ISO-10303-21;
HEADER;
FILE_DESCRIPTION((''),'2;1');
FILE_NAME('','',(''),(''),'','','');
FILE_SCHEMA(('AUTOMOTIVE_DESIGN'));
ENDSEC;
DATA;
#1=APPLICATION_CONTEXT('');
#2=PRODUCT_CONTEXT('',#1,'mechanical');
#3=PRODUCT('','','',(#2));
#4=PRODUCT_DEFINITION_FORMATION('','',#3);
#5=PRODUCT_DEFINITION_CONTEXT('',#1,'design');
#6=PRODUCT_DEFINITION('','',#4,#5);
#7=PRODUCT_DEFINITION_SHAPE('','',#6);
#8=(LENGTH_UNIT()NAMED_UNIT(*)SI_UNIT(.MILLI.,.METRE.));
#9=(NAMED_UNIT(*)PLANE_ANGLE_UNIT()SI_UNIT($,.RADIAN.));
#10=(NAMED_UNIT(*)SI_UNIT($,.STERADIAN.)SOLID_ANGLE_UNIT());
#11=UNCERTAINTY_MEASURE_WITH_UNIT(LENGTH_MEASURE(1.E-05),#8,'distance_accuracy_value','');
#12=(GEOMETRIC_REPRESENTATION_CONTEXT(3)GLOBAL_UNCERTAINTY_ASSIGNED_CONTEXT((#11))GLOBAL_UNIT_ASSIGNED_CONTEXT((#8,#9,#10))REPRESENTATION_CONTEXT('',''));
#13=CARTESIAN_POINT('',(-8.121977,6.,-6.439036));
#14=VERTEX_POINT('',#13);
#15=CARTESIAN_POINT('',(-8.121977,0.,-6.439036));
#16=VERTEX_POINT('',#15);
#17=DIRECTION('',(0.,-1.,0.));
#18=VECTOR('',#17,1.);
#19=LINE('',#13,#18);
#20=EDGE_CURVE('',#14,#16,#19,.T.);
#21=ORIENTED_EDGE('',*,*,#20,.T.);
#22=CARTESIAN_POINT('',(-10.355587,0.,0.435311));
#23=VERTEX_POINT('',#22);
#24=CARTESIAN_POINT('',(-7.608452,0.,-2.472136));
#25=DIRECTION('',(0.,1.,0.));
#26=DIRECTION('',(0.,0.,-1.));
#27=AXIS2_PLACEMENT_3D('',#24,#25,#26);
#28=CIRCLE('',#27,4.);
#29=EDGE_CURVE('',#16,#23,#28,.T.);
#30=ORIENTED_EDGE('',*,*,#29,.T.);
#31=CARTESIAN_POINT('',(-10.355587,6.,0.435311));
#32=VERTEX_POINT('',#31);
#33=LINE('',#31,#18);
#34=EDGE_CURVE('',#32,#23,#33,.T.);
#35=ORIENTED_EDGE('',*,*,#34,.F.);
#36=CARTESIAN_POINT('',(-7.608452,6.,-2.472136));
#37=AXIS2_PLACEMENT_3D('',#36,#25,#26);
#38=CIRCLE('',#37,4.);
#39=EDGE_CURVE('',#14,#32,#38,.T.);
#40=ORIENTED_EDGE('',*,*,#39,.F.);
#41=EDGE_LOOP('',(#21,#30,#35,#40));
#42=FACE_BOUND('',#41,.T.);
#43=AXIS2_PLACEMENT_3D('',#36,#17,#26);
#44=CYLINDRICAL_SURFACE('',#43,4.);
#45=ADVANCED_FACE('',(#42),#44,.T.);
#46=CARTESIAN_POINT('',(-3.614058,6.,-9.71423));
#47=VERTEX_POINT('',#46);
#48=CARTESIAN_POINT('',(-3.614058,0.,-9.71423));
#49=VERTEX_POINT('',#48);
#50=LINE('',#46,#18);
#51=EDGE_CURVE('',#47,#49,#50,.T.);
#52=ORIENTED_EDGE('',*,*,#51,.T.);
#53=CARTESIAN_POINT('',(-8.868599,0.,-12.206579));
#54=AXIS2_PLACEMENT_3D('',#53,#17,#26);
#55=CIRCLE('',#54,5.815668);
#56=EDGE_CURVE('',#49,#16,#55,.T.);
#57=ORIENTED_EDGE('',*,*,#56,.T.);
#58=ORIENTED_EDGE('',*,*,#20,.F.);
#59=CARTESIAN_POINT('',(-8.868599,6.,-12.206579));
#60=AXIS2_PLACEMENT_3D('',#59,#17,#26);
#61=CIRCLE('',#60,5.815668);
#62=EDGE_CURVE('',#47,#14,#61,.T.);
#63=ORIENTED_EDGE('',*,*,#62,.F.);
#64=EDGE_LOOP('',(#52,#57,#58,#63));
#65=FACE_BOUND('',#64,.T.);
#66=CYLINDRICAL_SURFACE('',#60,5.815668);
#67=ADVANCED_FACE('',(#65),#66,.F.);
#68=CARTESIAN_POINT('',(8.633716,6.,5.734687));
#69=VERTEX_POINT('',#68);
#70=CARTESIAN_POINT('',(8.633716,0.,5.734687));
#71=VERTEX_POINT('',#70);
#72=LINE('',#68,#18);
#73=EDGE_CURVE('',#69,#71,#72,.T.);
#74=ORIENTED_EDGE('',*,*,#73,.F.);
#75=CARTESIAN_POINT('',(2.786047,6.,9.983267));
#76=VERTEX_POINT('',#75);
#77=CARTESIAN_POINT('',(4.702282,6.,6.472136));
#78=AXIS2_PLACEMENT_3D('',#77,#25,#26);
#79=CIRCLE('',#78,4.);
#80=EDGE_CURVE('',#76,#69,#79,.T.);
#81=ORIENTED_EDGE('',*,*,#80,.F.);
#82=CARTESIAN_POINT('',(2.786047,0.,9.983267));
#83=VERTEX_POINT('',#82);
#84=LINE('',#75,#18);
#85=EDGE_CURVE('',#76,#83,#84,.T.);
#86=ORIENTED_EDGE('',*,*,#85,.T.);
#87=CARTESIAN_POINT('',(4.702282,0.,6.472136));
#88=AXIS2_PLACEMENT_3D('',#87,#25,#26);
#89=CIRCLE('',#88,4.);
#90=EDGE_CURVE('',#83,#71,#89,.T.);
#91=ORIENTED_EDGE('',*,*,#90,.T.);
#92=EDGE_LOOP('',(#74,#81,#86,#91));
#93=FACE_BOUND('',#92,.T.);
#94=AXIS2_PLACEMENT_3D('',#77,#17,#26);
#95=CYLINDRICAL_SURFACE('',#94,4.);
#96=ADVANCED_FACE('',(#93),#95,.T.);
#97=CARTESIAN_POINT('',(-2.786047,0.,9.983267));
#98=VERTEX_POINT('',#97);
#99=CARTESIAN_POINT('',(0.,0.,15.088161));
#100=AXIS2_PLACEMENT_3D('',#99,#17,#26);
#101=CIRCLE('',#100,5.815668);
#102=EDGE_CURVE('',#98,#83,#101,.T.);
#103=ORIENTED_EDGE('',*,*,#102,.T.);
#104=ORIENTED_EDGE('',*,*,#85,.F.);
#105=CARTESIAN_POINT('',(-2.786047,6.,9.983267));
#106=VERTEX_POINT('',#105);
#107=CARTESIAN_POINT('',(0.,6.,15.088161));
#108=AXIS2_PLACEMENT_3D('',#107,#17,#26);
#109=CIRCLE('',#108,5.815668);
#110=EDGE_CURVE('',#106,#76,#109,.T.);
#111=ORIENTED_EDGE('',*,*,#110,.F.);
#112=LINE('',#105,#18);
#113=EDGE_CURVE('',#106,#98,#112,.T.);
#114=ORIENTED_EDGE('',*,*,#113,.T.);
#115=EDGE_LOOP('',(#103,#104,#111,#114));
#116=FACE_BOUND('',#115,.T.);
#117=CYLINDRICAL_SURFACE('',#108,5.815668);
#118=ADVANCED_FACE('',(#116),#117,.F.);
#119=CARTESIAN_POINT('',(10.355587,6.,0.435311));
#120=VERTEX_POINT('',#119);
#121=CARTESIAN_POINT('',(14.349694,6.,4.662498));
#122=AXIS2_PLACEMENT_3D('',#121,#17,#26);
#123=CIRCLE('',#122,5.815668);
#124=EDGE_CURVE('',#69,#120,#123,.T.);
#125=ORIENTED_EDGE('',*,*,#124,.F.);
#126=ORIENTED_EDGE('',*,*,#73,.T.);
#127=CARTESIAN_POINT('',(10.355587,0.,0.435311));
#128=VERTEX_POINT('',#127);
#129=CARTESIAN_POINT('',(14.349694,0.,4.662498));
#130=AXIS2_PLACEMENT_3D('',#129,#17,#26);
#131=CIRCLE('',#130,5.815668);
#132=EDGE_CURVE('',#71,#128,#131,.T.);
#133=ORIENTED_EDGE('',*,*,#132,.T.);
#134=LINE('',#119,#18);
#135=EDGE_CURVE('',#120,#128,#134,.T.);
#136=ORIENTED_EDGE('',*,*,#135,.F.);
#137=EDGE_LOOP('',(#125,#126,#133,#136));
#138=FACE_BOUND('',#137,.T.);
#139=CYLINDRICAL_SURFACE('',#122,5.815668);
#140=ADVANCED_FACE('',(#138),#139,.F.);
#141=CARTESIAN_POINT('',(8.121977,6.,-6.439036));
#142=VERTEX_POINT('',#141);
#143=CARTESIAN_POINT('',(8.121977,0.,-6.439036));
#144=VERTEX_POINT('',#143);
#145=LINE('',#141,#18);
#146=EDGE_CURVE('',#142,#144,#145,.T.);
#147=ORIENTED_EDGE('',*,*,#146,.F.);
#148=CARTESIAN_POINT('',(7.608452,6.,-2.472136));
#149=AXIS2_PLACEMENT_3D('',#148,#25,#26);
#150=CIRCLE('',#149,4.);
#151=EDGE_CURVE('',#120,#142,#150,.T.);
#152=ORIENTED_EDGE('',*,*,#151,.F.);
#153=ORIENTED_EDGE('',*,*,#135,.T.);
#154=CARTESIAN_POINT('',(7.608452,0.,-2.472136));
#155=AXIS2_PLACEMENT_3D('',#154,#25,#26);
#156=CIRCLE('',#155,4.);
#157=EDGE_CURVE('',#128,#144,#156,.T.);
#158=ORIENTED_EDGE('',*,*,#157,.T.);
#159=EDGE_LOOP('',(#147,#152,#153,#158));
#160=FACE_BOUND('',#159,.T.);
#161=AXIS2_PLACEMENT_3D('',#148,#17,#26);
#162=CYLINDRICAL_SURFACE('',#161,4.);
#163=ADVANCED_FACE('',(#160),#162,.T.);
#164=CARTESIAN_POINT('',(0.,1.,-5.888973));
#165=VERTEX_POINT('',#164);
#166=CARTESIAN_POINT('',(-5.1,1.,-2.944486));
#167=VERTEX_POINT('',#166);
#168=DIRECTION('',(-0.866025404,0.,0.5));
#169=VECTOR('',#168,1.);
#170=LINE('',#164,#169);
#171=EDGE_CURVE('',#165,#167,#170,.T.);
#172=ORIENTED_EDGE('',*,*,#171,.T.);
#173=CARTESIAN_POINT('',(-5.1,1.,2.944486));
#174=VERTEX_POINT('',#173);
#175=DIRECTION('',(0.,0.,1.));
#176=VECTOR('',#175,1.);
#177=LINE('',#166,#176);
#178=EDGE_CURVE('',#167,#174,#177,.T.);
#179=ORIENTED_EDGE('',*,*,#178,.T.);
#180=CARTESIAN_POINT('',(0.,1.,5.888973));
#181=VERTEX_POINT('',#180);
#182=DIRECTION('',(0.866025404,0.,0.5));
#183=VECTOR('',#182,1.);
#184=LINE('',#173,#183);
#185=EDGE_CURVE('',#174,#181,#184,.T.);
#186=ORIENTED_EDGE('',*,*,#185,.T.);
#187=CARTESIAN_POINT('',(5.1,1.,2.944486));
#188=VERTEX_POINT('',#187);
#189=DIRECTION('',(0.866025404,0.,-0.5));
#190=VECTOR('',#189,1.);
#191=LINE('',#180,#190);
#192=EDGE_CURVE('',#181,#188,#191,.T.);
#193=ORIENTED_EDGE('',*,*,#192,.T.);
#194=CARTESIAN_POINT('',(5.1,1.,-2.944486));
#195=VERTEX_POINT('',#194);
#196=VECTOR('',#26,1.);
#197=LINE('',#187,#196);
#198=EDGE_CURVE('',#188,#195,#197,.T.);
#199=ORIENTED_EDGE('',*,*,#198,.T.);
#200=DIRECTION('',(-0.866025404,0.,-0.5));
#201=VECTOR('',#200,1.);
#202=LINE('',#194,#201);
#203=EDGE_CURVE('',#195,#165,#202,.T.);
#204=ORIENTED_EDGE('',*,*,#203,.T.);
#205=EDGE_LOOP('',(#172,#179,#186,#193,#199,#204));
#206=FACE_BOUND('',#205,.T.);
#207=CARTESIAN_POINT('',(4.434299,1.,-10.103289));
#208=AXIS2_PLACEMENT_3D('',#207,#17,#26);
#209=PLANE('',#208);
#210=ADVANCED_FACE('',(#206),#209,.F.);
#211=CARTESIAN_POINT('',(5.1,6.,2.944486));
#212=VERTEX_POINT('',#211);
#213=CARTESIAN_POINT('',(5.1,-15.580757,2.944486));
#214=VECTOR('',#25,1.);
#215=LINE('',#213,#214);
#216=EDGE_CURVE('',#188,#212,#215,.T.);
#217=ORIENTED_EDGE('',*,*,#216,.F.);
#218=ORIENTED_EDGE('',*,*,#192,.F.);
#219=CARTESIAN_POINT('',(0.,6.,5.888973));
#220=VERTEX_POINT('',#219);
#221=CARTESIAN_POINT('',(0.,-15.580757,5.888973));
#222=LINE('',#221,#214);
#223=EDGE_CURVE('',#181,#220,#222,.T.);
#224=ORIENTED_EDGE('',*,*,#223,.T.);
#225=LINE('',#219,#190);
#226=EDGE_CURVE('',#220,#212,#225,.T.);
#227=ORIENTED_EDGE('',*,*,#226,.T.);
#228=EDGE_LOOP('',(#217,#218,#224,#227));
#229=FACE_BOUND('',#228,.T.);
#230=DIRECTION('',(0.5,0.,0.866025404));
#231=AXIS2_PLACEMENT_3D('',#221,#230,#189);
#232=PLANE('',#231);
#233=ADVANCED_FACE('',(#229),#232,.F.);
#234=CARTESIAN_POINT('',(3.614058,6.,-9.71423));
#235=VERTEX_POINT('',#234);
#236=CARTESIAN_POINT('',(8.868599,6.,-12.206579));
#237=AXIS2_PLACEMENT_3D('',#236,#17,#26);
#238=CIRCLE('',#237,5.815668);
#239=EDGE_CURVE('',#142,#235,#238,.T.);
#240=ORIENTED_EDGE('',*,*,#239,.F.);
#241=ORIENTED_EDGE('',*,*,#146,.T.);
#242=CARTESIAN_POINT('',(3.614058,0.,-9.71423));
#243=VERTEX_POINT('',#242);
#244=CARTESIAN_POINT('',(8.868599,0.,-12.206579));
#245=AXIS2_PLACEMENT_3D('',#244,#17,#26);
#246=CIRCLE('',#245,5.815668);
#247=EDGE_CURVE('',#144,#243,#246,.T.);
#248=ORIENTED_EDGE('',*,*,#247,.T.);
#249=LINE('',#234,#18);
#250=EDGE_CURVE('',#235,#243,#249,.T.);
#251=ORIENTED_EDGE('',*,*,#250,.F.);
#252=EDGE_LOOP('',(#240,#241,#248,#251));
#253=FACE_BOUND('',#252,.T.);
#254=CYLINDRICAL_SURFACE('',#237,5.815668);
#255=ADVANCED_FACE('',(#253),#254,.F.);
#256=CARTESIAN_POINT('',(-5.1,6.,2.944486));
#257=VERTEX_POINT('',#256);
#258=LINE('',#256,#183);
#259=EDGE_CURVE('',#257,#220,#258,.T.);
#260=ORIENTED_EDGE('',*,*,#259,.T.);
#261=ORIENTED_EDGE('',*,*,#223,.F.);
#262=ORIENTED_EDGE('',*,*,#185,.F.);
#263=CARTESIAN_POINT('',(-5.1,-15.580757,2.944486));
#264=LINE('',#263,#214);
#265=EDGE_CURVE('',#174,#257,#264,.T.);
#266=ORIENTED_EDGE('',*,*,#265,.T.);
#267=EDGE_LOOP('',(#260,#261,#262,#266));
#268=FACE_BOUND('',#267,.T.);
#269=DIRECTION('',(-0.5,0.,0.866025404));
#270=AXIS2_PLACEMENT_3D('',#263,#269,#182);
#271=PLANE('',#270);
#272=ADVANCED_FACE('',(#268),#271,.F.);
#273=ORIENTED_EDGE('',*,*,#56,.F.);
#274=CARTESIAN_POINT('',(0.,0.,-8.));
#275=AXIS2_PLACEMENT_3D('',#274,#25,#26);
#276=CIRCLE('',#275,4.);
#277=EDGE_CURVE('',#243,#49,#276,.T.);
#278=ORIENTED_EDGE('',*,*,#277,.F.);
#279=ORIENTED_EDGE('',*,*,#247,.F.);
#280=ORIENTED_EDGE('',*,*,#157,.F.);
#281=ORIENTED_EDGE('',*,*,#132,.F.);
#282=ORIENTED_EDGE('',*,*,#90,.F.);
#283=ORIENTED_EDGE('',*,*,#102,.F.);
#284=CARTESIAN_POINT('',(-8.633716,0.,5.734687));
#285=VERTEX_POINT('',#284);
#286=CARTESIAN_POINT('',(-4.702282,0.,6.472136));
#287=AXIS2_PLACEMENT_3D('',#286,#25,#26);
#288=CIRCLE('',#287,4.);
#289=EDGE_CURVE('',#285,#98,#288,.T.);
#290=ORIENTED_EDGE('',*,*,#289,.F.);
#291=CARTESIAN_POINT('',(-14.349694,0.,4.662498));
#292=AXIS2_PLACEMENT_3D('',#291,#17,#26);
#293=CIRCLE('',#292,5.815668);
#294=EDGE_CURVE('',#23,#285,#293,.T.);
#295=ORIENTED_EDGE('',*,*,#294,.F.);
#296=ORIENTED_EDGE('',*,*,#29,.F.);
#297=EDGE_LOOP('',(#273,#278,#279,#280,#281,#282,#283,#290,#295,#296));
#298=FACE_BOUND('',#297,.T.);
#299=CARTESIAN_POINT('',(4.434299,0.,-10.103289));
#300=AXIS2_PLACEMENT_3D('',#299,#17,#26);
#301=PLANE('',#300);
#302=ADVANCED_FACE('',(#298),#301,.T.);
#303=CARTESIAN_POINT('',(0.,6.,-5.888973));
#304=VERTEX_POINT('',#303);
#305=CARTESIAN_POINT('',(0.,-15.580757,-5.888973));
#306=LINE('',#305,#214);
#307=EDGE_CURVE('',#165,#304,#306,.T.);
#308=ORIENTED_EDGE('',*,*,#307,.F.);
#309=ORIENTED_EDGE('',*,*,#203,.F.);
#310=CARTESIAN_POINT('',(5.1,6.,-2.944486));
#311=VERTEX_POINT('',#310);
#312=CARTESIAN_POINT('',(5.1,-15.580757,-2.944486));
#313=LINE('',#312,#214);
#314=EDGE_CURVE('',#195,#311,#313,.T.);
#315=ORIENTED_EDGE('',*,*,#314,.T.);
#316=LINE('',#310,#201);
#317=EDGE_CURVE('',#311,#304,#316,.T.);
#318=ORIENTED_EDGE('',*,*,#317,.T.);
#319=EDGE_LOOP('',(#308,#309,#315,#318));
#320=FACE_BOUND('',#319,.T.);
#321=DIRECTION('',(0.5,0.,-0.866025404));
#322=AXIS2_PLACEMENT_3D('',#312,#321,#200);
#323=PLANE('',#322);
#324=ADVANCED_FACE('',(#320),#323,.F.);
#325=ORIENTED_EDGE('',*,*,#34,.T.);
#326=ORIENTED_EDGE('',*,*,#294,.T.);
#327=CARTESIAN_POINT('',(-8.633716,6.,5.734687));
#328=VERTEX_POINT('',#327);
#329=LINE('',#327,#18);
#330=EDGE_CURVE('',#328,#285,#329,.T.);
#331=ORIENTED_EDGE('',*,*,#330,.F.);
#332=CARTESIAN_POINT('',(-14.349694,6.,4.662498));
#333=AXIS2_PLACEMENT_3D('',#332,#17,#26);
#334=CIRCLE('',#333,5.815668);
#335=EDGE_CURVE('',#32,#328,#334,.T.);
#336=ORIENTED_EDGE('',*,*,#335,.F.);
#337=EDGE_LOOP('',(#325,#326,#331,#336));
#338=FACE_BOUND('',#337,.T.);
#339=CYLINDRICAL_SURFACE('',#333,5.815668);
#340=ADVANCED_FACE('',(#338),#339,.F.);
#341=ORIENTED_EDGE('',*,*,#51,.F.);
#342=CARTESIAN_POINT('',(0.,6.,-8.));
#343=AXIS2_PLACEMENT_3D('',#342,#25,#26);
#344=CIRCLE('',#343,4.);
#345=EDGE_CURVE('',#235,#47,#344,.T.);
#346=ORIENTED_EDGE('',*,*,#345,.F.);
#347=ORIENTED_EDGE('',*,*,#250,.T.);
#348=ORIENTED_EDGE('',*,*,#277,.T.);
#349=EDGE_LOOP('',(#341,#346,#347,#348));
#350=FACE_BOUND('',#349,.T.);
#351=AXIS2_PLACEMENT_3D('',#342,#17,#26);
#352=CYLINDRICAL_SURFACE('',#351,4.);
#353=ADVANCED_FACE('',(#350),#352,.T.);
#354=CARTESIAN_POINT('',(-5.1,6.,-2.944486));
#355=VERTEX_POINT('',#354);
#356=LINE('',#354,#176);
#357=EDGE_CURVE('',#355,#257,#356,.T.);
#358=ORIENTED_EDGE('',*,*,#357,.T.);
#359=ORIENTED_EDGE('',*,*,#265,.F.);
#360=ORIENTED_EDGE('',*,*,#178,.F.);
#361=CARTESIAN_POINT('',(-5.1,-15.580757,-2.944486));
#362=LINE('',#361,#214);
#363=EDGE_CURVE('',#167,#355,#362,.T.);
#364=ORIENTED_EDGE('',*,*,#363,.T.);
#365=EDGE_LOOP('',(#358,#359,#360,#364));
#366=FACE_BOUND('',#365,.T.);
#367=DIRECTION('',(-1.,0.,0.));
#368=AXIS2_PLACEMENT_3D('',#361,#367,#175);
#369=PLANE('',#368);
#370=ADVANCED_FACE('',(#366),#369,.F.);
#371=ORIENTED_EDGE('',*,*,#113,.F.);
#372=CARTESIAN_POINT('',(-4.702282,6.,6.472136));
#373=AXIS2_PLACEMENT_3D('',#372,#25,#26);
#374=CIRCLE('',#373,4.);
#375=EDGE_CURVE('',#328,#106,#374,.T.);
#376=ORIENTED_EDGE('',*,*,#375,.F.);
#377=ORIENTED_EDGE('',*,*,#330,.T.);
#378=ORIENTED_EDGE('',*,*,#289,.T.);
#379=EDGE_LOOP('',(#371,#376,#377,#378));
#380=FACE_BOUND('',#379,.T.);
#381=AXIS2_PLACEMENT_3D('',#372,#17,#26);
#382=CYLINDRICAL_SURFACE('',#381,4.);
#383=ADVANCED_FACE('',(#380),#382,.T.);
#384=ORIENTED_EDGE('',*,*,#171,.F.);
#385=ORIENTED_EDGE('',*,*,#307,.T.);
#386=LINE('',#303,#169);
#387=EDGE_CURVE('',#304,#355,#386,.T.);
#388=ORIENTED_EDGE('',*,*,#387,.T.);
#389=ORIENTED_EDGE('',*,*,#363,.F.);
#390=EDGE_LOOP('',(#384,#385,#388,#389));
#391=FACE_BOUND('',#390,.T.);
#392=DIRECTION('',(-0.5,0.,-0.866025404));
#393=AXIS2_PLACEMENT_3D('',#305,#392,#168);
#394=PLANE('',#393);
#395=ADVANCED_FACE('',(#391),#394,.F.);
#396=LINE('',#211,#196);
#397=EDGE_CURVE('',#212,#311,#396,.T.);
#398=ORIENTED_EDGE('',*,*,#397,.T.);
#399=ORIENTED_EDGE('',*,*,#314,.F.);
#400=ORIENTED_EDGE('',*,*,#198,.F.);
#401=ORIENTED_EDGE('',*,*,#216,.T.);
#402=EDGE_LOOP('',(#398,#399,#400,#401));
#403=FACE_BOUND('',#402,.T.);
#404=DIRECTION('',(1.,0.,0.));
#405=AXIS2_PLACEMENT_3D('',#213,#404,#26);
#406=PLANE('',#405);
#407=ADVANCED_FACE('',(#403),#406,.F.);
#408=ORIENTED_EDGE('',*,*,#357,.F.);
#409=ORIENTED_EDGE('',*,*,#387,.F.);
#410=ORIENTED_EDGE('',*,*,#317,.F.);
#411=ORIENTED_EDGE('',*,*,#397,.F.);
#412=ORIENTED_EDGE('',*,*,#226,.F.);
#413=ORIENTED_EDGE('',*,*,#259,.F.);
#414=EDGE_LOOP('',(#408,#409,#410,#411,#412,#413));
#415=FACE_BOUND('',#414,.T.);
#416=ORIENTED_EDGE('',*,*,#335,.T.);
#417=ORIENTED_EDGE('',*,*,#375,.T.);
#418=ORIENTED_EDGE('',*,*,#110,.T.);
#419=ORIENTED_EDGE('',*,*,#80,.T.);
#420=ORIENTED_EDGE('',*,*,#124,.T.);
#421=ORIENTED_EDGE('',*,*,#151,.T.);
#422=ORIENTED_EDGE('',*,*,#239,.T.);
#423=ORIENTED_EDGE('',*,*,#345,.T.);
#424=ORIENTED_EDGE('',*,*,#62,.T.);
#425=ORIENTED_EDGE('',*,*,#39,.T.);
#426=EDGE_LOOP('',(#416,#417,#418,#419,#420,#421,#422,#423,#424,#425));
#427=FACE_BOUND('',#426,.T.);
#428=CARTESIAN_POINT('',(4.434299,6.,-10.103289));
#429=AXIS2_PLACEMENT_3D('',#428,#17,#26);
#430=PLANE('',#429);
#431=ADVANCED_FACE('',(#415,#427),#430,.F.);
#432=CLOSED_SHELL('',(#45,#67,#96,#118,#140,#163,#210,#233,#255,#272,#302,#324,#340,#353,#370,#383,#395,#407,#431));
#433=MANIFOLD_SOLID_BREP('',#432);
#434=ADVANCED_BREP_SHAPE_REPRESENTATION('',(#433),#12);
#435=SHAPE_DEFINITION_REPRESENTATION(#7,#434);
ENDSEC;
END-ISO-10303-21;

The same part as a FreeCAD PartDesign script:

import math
import FreeCAD as App
import Part
import Sketcher
from FreeCAD import Vector
Q = App.Units.Quantity


def add_polygon(sketch, points):
    """Adds a closed chain of lines whose ends are joined by coincident constraints."""
    first, n = sketch.GeometryCount, len(points)
    for a, b in zip(points, points[1:] + points[:1]):
        sketch.addGeometry(Part.LineSegment(App.Vector(*a, 0), App.Vector(*b, 0)), False)
    for i in range(n):
        sketch.addConstraint(Sketcher.Constraint("Coincident", first + i, 2, first + (i + 1) % n, 1))

doc = App.newDocument("Part")
body = doc.addObject("PartDesign::Body", "Body")

# Sketch on XZ plane
sketch1 = body.newObject("Sketcher::SketchObject", "Sketch")
sketch1.AttachmentSupport = (doc.getObject("XZ_Plane"), [""])
sketch1.MapMode = "FlatFace"
sketch1.addGeometry([
    Part.ArcOfCircle(Part.Circle(Vector(0, -8, 0), Vector(0, 0, 1), 4), math.radians(-155), math.radians(-25)),  # 0
    Part.ArcOfCircle(Part.Circle(Vector(-8.9, -12.2, 0), Vector(0, 0, 1), 5.8), math.radians(25), math.radians(83)),  # 1
    Part.ArcOfCircle(Part.Circle(Vector(-7.6, -2.5, 0), Vector(0, 0, 1), 4), math.radians(133), math.radians(263)),  # 2
    Part.ArcOfCircle(Part.Circle(Vector(-14.3, 4.7, 0), Vector(0, 0, 1), 5.8), math.radians(-47), math.radians(11)),  # 3
    Part.ArcOfCircle(Part.Circle(Vector(-4.7, 6.5, 0), Vector(0, 0, 1), 4), math.radians(61), math.radians(191)),  # 4
    Part.ArcOfCircle(Part.Circle(Vector(0, 15.1, 0), Vector(0, 0, 1), 5.8), math.radians(-119), math.radians(-61)),  # 5
    Part.ArcOfCircle(Part.Circle(Vector(4.7, 6.5, 0), Vector(0, 0, 1), 4), math.radians(-11), math.radians(119)),  # 6
    Part.ArcOfCircle(Part.Circle(Vector(14.3, 4.7, 0), Vector(0, 0, 1), 5.8), math.radians(169), math.radians(227)),  # 7
    Part.ArcOfCircle(Part.Circle(Vector(7.6, -2.5, 0), Vector(0, 0, 1), 4), math.radians(-83), math.radians(47)),  # 8
    Part.ArcOfCircle(Part.Circle(Vector(8.9, -12.2, 0), Vector(0, 0, 1), 5.8), math.radians(97), math.radians(155)),  # 9
], False)
sketch1.addConstraint([
    Sketcher.Constraint("Tangent", 0, 1, 1, 1),
    Sketcher.Constraint("Tangent", 1, 2, 2, 2),
    Sketcher.Constraint("Tangent", 2, 1, 3, 1),
    Sketcher.Constraint("Tangent", 3, 2, 4, 2),
    Sketcher.Constraint("Tangent", 4, 1, 5, 1),
    Sketcher.Constraint("Tangent", 5, 2, 6, 2),
    Sketcher.Constraint("Tangent", 6, 1, 7, 1),
    Sketcher.Constraint("Tangent", 7, 2, 8, 2),
    Sketcher.Constraint("Tangent", 8, 1, 9, 1),
    Sketcher.Constraint("Tangent", 9, 2, 0, 2),
    Sketcher.Constraint("Equal", 0, 2),
    Sketcher.Constraint("Equal", 1, 3),
    Sketcher.Constraint("Equal", 2, 4),
    Sketcher.Constraint("Equal", 3, 5),
    Sketcher.Constraint("Equal", 4, 6),
    Sketcher.Constraint("Equal", 5, 7),
    Sketcher.Constraint("Equal", 6, 8),
    Sketcher.Constraint("Equal", 7, 9),
    Sketcher.Constraint("Symmetric", 4, 3, 6, 3, -2),
    Sketcher.Constraint("Symmetric", 2, 3, 8, 3, -2),
    Sketcher.Constraint("PointOnObject", 0, 3, -2),
    Sketcher.Constraint("Radius", 0, 4.0),
    Sketcher.Constraint("DistanceY", 0, 3, -1, 1, 8.0),
    Sketcher.Constraint("Radius", 1, 5.815668),
    Sketcher.Constraint("DistanceX", 1, 3, -1, 1, 8.868599),
    Sketcher.Constraint("DistanceY", -1, 1, 3, 3, 4.662498),
    Sketcher.Constraint("DistanceY", 1, 2, 2, 3, 3.9669),
    Sketcher.Constraint("DistanceY", -1, 1, 5, 3, 15.088161),
])
pad1 = body.newObject("PartDesign::Pad", "Pad")
pad1.Profile = sketch1
pad1.Length = 6
pad1.Reversed = True

# Sketch on XZ plane
sketch2 = body.newObject("Sketcher::SketchObject", "Sketch001")
sketch2.AttachmentSupport = (doc.getObject("XZ_Plane"), [""])
sketch2.MapMode = "FlatFace"
sketch2.AttachmentOffset = App.Placement(Vector(0, 0, -6), App.Rotation())
add_polygon(sketch2, [(-5, -3), (-5, 3), (0, 6), (5, 3), (5, -3), (0, -6)])  # lines 0-5
sketch2.addConstraint([
    Sketcher.Constraint("Vertical", 0),
    Sketcher.Constraint("Vertical", 3),
    Sketcher.Constraint("Symmetric", 0, 2, 3, 2, -1, 1),
    Sketcher.Constraint("Symmetric", 1, 2, 4, 2, -1, 1),
    Sketcher.Constraint("PointOnObject", 1, 2, -2),
    Sketcher.Constraint("Parallel", 2, 5),
    Sketcher.Constraint("Horizontal", 0, 2, 2, 2),
    Sketcher.Constraint("Angle", 1, Q("30 deg")),
    Sketcher.Constraint("DistanceX", 0, 2, -1, 1, 5.1),
    Sketcher.Constraint("DistanceY", 0, 1, 0, 2, 5.888973),
])
pocket1 = body.newObject("PartDesign::Pocket", "Pocket")
pocket1.Profile = sketch2
pocket1.Length = 5
pocket1.Reversed = True

doc.recompute()
